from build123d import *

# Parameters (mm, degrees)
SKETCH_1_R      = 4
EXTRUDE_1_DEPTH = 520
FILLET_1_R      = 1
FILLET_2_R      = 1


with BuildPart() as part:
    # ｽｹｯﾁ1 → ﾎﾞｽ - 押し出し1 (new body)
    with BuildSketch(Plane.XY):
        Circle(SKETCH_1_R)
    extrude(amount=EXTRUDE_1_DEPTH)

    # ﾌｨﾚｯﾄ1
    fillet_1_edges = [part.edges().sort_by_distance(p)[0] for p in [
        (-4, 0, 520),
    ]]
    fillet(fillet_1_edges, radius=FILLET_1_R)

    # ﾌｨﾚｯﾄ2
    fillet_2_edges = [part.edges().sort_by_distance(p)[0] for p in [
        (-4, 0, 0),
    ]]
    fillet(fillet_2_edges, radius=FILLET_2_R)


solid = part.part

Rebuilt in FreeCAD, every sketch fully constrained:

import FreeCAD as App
import Part
import Sketcher
Q = App.Units.Quantity


def edges_at(feature, points):
    """Names of the edges that pass closest to the given points."""
    edges = feature.Shape.Edges
    near = lambda p: min(range(len(edges)), key=lambda i: edges[i].distToShape(Part.Vertex(*p))[0])
    return sorted({f"Edge{near(p) + 1}" for p in points})

doc = App.newDocument("Part")
body = doc.addObject("PartDesign::Body", "Body")

# Sketch on XY plane
sketch1 = body.newObject("Sketcher::SketchObject", "Sketch")
sketch1.AttachmentSupport = (doc.getObject("XY_Plane"), [""])
sketch1.MapMode = "FlatFace"
sketch1.addGeometry(Part.Circle(App.Vector(0, 0, 0), App.Vector(0, 0, 1), 4), False)
sketch1.addConstraint(Sketcher.Constraint("Coincident", 0, 3, -1, 1))
sketch1.addConstraint(Sketcher.Constraint("Diameter", 0, Q("8 mm")))
pad1 = body.newObject("PartDesign::Pad", "Pad")
pad1.Profile = sketch1
pad1.Length = 520
doc.recompute()

fillet = body.newObject("PartDesign::Fillet", "Fillet")
fillet.Base = (pad1, edges_at(pad1, [(-4, 0, 520)]))
fillet.Radius = 1
doc.recompute()

fillet2 = body.newObject("PartDesign::Fillet", "Fillet001")
fillet2.Base = (fillet, edges_at(fillet, [(-4, 0, 0)]))
fillet2.Radius = 1

doc.recompute()
